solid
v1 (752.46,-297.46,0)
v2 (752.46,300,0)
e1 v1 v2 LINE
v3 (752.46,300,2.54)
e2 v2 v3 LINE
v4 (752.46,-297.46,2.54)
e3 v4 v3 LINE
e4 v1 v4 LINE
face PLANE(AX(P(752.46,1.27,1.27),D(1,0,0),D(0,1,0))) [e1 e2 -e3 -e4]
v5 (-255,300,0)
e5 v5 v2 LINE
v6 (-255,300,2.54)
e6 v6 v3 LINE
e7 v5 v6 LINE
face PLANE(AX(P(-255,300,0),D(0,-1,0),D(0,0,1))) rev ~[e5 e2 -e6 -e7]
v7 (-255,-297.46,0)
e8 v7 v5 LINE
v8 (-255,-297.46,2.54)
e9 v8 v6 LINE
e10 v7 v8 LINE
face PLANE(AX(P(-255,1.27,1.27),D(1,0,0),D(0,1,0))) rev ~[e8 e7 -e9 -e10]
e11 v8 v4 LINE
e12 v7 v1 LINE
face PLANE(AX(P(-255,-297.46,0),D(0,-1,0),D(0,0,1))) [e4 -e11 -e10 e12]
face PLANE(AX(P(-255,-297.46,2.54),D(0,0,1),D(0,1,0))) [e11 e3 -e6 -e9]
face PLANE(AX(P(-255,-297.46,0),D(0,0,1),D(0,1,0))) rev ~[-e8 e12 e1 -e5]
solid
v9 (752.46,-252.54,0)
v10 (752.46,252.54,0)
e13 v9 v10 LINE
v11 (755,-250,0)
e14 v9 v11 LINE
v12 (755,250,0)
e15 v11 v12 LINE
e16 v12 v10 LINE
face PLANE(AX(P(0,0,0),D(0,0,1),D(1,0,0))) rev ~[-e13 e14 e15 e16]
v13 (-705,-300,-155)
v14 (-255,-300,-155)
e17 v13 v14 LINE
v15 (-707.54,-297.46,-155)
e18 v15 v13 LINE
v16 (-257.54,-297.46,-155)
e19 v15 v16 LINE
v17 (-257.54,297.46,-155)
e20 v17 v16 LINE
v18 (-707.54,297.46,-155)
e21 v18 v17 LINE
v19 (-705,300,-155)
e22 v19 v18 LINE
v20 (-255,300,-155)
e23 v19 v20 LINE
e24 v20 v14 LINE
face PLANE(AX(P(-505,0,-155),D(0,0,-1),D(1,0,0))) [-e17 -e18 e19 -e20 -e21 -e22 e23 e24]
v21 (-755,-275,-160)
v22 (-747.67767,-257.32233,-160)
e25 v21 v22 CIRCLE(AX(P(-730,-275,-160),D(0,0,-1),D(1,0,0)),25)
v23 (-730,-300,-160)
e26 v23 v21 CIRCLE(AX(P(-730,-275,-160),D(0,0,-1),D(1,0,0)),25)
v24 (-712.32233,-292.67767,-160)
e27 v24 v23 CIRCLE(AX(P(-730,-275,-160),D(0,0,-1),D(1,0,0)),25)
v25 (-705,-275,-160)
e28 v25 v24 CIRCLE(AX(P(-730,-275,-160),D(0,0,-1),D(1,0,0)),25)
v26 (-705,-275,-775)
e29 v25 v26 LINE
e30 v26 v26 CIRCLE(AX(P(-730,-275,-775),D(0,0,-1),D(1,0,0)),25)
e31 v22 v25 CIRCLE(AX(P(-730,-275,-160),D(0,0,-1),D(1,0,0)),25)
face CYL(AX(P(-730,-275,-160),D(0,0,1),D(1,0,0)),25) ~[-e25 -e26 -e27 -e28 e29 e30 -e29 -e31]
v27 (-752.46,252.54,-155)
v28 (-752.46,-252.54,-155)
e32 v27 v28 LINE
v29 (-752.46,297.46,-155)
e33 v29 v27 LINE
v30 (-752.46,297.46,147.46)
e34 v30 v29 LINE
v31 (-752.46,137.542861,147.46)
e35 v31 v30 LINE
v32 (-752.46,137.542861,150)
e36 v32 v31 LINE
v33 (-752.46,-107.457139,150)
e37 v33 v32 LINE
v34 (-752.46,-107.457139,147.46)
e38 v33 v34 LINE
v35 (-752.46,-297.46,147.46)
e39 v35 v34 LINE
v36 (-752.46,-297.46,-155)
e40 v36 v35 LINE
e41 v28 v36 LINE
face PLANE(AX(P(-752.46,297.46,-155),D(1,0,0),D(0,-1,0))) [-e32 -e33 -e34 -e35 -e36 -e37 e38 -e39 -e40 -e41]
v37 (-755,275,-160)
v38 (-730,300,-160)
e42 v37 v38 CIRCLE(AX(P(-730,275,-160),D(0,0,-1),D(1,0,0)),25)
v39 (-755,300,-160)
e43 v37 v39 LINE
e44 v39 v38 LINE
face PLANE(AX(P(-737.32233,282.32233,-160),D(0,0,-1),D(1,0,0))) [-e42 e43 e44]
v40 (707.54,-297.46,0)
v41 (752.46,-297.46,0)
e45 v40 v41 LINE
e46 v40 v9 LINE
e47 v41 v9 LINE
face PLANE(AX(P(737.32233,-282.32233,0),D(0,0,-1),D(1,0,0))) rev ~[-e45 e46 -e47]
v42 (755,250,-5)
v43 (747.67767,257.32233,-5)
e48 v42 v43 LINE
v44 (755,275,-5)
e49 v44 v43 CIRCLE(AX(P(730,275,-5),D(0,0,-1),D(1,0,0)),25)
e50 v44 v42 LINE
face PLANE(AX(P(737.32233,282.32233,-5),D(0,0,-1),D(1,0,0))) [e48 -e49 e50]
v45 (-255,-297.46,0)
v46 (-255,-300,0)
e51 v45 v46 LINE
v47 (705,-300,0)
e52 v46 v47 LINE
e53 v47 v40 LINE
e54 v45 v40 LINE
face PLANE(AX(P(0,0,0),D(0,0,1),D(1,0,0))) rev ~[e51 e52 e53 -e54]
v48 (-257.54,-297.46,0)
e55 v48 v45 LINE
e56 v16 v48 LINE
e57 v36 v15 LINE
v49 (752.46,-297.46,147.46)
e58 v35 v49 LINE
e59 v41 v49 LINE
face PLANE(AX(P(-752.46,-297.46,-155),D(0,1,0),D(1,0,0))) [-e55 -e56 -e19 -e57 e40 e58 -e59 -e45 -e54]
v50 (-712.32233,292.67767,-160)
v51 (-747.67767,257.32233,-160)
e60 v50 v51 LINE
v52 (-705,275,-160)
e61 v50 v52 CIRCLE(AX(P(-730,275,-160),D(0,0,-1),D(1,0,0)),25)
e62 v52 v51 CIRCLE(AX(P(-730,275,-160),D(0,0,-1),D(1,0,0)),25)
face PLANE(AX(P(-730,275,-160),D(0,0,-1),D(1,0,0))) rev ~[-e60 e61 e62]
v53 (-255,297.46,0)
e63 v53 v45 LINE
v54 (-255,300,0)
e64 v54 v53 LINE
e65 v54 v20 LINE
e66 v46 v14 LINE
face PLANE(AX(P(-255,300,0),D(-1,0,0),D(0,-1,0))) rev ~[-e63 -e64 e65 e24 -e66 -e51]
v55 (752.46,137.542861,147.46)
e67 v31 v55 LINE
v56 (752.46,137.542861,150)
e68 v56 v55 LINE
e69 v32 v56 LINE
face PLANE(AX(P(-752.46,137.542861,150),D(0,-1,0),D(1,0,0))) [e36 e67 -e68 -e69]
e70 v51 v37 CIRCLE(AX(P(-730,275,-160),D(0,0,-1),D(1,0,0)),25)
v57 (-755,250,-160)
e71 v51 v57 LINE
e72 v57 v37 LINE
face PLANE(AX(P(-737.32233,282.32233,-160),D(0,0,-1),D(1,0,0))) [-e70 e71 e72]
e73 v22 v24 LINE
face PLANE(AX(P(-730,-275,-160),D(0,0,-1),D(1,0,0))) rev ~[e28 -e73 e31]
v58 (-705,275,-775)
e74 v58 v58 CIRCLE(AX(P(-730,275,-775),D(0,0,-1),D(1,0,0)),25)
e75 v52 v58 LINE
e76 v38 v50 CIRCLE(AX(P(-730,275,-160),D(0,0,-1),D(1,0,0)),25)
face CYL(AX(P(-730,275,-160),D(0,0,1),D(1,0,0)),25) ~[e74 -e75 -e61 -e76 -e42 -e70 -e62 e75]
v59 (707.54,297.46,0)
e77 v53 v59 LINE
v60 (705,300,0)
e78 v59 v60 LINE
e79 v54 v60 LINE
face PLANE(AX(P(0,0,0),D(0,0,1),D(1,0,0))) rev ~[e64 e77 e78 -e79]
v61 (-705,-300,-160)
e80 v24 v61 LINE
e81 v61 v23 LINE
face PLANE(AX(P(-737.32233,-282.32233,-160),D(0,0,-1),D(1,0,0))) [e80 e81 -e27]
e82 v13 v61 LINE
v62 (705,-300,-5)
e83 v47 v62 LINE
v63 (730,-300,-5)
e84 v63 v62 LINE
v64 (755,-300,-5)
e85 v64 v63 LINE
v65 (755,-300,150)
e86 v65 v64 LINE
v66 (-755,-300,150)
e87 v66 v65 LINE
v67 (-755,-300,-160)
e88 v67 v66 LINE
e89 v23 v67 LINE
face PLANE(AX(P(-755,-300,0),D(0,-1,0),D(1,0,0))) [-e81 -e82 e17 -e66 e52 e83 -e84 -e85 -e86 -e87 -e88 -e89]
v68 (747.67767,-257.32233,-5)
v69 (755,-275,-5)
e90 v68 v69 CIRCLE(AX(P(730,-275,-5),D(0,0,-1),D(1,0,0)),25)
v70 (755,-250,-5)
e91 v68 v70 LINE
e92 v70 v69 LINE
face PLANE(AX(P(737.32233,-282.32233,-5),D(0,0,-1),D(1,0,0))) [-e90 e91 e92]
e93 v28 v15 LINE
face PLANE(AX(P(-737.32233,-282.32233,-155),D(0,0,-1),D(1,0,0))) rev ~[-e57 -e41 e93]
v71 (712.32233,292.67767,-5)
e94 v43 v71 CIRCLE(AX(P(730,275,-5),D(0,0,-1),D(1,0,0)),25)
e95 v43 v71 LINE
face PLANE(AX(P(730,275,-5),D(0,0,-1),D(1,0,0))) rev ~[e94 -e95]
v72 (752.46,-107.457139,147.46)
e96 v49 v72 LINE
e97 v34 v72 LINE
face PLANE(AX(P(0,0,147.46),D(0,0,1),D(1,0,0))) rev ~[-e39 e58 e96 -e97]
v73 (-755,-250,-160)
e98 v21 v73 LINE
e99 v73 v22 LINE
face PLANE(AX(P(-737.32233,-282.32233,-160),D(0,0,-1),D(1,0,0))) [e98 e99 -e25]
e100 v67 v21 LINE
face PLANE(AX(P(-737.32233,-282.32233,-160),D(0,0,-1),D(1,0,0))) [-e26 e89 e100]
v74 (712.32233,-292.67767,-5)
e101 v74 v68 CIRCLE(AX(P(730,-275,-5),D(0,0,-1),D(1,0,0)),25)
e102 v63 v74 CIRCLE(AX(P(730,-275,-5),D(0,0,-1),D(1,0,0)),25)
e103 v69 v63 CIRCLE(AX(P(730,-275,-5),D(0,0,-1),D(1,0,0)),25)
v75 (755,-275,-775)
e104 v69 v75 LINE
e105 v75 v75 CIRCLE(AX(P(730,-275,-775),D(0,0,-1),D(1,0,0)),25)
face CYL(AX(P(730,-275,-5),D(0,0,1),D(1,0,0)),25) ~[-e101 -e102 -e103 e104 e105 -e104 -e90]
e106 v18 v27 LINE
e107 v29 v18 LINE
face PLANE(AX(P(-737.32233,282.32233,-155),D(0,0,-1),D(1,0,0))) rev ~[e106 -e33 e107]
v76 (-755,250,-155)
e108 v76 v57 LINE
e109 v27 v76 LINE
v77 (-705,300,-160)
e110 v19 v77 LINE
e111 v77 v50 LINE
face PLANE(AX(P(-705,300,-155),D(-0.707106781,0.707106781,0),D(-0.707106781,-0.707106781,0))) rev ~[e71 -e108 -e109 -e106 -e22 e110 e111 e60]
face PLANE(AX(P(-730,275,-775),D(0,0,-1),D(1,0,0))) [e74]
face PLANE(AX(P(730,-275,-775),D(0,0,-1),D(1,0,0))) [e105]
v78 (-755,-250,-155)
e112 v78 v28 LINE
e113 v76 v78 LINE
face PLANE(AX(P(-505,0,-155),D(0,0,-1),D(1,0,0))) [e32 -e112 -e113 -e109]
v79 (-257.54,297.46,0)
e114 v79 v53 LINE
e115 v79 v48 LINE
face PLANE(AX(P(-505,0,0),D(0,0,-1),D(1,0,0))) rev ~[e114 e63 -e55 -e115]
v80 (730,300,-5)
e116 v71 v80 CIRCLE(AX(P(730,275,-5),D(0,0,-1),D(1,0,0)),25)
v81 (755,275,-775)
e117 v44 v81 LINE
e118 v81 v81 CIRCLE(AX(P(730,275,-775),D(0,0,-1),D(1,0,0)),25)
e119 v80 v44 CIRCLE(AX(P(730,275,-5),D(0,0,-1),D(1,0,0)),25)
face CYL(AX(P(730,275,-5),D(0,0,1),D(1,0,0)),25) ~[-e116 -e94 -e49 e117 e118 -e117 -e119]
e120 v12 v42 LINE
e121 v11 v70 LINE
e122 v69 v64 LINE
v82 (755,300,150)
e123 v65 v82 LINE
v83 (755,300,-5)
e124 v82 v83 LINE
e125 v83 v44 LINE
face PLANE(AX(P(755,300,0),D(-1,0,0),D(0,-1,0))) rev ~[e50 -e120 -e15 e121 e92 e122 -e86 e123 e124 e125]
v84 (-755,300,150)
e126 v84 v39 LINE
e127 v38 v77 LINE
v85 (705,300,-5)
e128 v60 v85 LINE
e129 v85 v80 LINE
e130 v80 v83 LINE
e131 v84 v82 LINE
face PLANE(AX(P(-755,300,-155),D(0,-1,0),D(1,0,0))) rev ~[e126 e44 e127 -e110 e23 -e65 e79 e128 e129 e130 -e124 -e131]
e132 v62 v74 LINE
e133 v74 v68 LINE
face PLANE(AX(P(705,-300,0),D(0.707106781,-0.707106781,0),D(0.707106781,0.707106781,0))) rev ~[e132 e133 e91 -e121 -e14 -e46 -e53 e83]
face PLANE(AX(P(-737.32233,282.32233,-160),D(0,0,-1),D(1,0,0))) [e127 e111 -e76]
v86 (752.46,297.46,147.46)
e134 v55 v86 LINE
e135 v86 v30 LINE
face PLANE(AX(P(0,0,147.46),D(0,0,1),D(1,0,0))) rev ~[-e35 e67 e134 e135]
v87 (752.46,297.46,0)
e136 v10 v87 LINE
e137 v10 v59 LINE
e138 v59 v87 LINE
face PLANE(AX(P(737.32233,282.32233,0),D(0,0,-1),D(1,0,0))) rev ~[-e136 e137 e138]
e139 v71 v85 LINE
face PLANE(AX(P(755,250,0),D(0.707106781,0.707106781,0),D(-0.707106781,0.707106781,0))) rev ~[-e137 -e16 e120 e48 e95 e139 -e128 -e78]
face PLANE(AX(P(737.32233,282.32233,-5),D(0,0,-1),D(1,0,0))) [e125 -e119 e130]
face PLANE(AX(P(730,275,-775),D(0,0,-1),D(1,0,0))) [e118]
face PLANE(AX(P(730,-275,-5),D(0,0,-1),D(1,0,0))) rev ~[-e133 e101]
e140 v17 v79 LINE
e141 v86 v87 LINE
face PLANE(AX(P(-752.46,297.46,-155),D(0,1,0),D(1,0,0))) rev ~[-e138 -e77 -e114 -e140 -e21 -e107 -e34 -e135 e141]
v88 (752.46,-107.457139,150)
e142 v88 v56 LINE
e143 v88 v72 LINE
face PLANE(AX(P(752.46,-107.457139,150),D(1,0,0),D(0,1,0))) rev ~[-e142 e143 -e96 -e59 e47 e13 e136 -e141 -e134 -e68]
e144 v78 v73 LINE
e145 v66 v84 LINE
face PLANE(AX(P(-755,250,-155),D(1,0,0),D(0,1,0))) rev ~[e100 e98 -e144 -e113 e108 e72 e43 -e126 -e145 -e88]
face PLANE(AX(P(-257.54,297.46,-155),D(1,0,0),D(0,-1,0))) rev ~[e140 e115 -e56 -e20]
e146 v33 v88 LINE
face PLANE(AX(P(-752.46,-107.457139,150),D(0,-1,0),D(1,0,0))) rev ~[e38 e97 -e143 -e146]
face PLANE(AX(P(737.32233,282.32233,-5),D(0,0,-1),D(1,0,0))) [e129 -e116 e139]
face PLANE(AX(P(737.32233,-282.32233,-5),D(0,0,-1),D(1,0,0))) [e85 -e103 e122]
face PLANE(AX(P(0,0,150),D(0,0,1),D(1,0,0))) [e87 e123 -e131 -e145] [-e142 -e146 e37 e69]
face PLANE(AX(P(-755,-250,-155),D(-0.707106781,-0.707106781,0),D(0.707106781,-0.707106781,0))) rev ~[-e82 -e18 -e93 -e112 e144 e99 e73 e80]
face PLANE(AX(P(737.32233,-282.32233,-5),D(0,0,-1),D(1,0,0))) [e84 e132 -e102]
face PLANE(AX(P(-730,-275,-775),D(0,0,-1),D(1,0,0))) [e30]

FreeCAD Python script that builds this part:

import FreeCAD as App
import Part
import Sketcher
from FreeCAD import Vector


def faces_at(feature, points):
    """Names of the faces that lie closest to the given points."""
    faces = feature.Shape.Faces
    near = lambda p: min(range(len(faces)), key=lambda i: faces[i].distToShape(Part.Vertex(*p))[0])
    return sorted({f"Face{near(p) + 1}" for p in points})


def add_polygon(sketch, points):
    """Adds a closed chain of lines whose ends are joined by coincident constraints."""
    first, n = sketch.GeometryCount, len(points)
    for a, b in zip(points, points[1:] + points[:1]):
        sketch.addGeometry(Part.LineSegment(App.Vector(*a, 0), App.Vector(*b, 0)), False)
    for i in range(n):
        sketch.addConstraint(Sketcher.Constraint("Coincident", first + i, 2, first + (i + 1) % n, 1))

doc = App.newDocument("Part")
body = doc.addObject("PartDesign::Body", "Body")

sketch1 = body.newObject("Sketcher::SketchObject", "Sketch")
sketch1.AttachmentSupport = (doc.getObject("XY_Plane"), [""])
sketch1.MapMode = "FlatFace"
add_polygon(sketch1, [(-755, 300), (-755, -300), (755, -300), (755, 300)])
sketch1.addConstraint(Sketcher.Constraint("Vertical", 0))
sketch1.addConstraint(Sketcher.Constraint("Horizontal", 1))
sketch1.addConstraint(Sketcher.Constraint("Vertical", 2))
sketch1.addConstraint(Sketcher.Constraint("Horizontal", 3))
sketch1.addConstraint(Sketcher.Constraint("Symmetric", 0, 2, 2, 2, -1, 1))
sketch1.addConstraint(Sketcher.Constraint("DistanceX", 1, 1, 1, 2, 1510.0))
sketch1.addConstraint(Sketcher.Constraint("DistanceY", 0, 2, 0, 1, 600.0))
pad1 = body.newObject("PartDesign::Pad", "Pad")
pad1.Profile = sketch1
pad1.Length = 150
doc.recompute()

thickness = body.newObject("PartDesign::Thickness", "Thickness")
thickness.Base = (pad1, faces_at(pad1, [(0, 0, 0)]))
thickness.Value = 2.54
thickness.Reversed = True
thickness.Join = "Arc"

sketch2 = body.newObject("Sketcher::SketchObject", "Sketch001")
sketch2.AttachmentSupport = (doc.getObject("XY_Plane"), [""])
sketch2.MapMode = "FlatFace"
add_polygon(sketch2, [(-755, -300), (-755, 300), (-255, 300), (-255, -300)])
sketch2.addConstraint(Sketcher.Constraint("Vertical", 0))
sketch2.addConstraint(Sketcher.Constraint("Horizontal", 1))
sketch2.addConstraint(Sketcher.Constraint("Vertical", 2))
sketch2.addConstraint(Sketcher.Constraint("Horizontal", 3))
sketch2.addConstraint(Sketcher.Constraint("DistanceX", 1, 1, 1, 2, 500.0))
sketch2.addConstraint(Sketcher.Constraint("DistanceY", 0, 1, 0, 2, 600.0))
sketch2.addConstraint(Sketcher.Constraint("DistanceX", 0, 2, -1, 1, 755.0))
sketch2.addConstraint(Sketcher.Constraint("DistanceY", -1, 1, 0, 2, 300.0))
pad2 = body.newObject("PartDesign::Pad", "Pad001")
pad2.Profile = sketch2
pad2.Length = 155
pad2.Reversed = True

sketch3 = body.newObject("Sketcher::SketchObject", "Sketch002")
sketch3.AttachmentSupport = (doc.getObject("XY_Plane"), [""])
sketch3.MapMode = "FlatFace"
sketch3.AttachmentOffset = App.Placement(Vector(0, 0, -155), App.Rotation())
add_polygon(sketch3, [(-752, -297), (-752, 297), (-258, 297), (-258, -297)])
sketch3.addConstraint(Sketcher.Constraint("Vertical", 0))
sketch3.addConstraint(Sketcher.Constraint("Horizontal", 1))
sketch3.addConstraint(Sketcher.Constraint("Vertical", 2))
sketch3.addConstraint(Sketcher.Constraint("Horizontal", 3))
sketch3.addConstraint(Sketcher.Constraint("DistanceX", 1, 1, 1, 2, 494.92))
sketch3.addConstraint(Sketcher.Constraint("DistanceY", 0, 1, 0, 2, 594.92))
sketch3.addConstraint(Sketcher.Constraint("DistanceX", 0, 2, -1, 1, 752.46))
sketch3.addConstraint(Sketcher.Constraint("DistanceY", -1, 1, 0, 2, 297.46))
pocket1 = body.newObject("PartDesign::Pocket", "Pocket")
pocket1.Profile = sketch3
pocket1.Length = 302.46
pocket1.Reversed = True

sketch4 = body.newObject("Sketcher::SketchObject", "Sketch003")
sketch4.AttachmentSupport = (doc.getObject("XY_Plane"), [""])
sketch4.MapMode = "FlatFace"
sketch4.AttachmentOffset = App.Placement(Vector(0, 0, 150), App.Rotation())
add_polygon(sketch4, [(-752, 138), (-752, -107), (752, -107), (752, 138)])
sketch4.addConstraint(Sketcher.Constraint("Vertical", 0))
sketch4.addConstraint(Sketcher.Constraint("Horizontal", 1))
sketch4.addConstraint(Sketcher.Constraint("Vertical", 2))
sketch4.addConstraint(Sketcher.Constraint("Horizontal", 3))
sketch4.addConstraint(Sketcher.Constraint("DistanceY", 0, 2, 0, 1, 245.0))
sketch4.addConstraint(Sketcher.Constraint("DistanceX", 1, 1, 1, 2, 1504.92))
sketch4.addConstraint(Sketcher.Constraint("DistanceX", 0, 2, -1, 1, 752.46))
sketch4.addConstraint(Sketcher.Constraint("DistanceY", 0, 2, -1, 1, 107.457139))
pocket2 = body.newObject("PartDesign::Pocket", "Pocket001")
pocket2.Profile = sketch4
pocket2.Length = 25.4

sketch5 = body.newObject("Sketcher::SketchObject", "Sketch004")
sketch5.AttachmentSupport = (doc.getObject("XY_Plane"), [""])
sketch5.MapMode = "FlatFace"
add_polygon(sketch5, [(705, 300), (755, 300), (755, 250)])
add_polygon(sketch5, [(755, -250), (755, -300), (705, -300)])
sketch5.addConstraint(Sketcher.Constraint("Horizontal", 0))
sketch5.addConstraint(Sketcher.Constraint("Vertical", 1))
sketch5.addConstraint(Sketcher.Constraint("Vertical", 3))
sketch5.addConstraint(Sketcher.Constraint("Horizontal", 4))
sketch5.addConstraint(Sketcher.Constraint("Symmetric", 0, 2, 3, 2, -1))
sketch5.addConstraint(Sketcher.Constraint("Perpendicular", 2, 5))
sketch5.addConstraint(Sketcher.Constraint("Vertical", 2, 2, 4, 2))
sketch5.addConstraint(Sketcher.Constraint("Equal", 4, 1))
sketch5.addConstraint(Sketcher.Constraint("DistanceX", 0, 1, 0, 2, 50.0))
sketch5.addConstraint(Sketcher.Constraint("DistanceX", -1, 1, 0, 2, 755.0))
sketch5.addConstraint(Sketcher.Constraint("DistanceY", -1, 1, 0, 2, 300.0))
pad3 = body.newObject("PartDesign::Pad", "Pad002")
pad3.Profile = sketch5
pad3.Length = 5
pad3.Reversed = True

sketch6 = body.newObject("Sketcher::SketchObject", "Sketch005")
sketch6.AttachmentSupport = (doc.getObject("XY_Plane"), [""])
sketch6.MapMode = "FlatFace"
sketch6.AttachmentOffset = App.Placement(Vector(0, 0, -5), App.Rotation())
sketch6.addGeometry(Part.Circle(Vector(730, -275, 0), Vector(0, 0, 1), 25), False)
sketch6.addGeometry(Part.Circle(Vector(730, 275, 0), Vector(0, 0, 1), 25), False)
sketch6.addConstraint(Sketcher.Constraint("Equal", 0, 1))
sketch6.addConstraint(Sketcher.Constraint("Symmetric", 0, 3, 1, 3, -1))
sketch6.addConstraint(Sketcher.Constraint("Diameter", 0, 50.0))
sketch6.addConstraint(Sketcher.Constraint("DistanceX", -1, 1, 0, 3, 730.0))
sketch6.addConstraint(Sketcher.Constraint("DistanceY", 0, 3, -1, 1, 275.0))
pad4 = body.newObject("PartDesign::Pad", "Pad003")
pad4.Profile = sketch6
pad4.Length = 770
pad4.Reversed = True

sketch7 = body.newObject("Sketcher::SketchObject", "Sketch006")
sketch7.AttachmentSupport = (doc.getObject("XY_Plane"), [""])
sketch7.MapMode = "FlatFace"
sketch7.AttachmentOffset = App.Placement(Vector(0, 0, -155), App.Rotation())
add_polygon(sketch7, [(-755, 250), (-755, 300), (-705, 300)])
add_polygon(sketch7, [(-705, -300), (-755, -300), (-755, -250)])
sketch7.addConstraint(Sketcher.Constraint("Vertical", 0))
sketch7.addConstraint(Sketcher.Constraint("Horizontal", 1))
sketch7.addConstraint(Sketcher.Constraint("Horizontal", 3))
sketch7.addConstraint(Sketcher.Constraint("Vertical", 4))
sketch7.addConstraint(Sketcher.Constraint("Symmetric", 0, 2, 3, 2, -1))
sketch7.addConstraint(Sketcher.Constraint("Perpendicular", 2, 5))
sketch7.addConstraint(Sketcher.Constraint("Vertical", 1, 2, 5, 2))
sketch7.addConstraint(Sketcher.Constraint("Equal", 3, 0))
sketch7.addConstraint(Sketcher.Constraint("DistanceX", 1, 1, 1, 2, 50.0))
sketch7.addConstraint(Sketcher.Constraint("DistanceX", 0, 2, -1, 1, 755.0))
sketch7.addConstraint(Sketcher.Constraint("DistanceY", -1, 1, 0, 2, 300.0))
pad5 = body.newObject("PartDesign::Pad", "Pad004")
pad5.Profile = sketch7
pad5.Length = 5
pad5.Reversed = True

sketch8 = body.newObject("Sketcher::SketchObject", "Sketch007")
sketch8.AttachmentSupport = (doc.getObject("XY_Plane"), [""])
sketch8.MapMode = "FlatFace"
sketch8.AttachmentOffset = App.Placement(Vector(0, 0, -160), App.Rotation())
sketch8.addGeometry(Part.Circle(Vector(-730, -275, 0), Vector(0, 0, 1), 25), False)
sketch8.addGeometry(Part.Circle(Vector(-730, 275, 0), Vector(0, 0, 1), 25), False)
sketch8.addConstraint(Sketcher.Constraint("Equal", 0, 1))
sketch8.addConstraint(Sketcher.Constraint("Symmetric", 0, 3, 1, 3, -1))
sketch8.addConstraint(Sketcher.Constraint("Diameter", 0, 50.0))
sketch8.addConstraint(Sketcher.Constraint("DistanceX", 0, 3, -1, 1, 730.0))
sketch8.addConstraint(Sketcher.Constraint("DistanceY", 0, 3, -1, 1, 275.0))
pad6 = body.newObject("PartDesign::Pad", "Pad005")
pad6.Profile = sketch8
pad6.Length = 615
pad6.Reversed = True
body2 = doc.addObject("PartDesign::Body", "Body001")

sketch9 = body2.newObject("Sketcher::SketchObject", "Sketch008")
sketch9.AttachmentSupport = (doc.getObject("YZ_Plane001"), [""])
sketch9.MapMode = "FlatFace"
sketch9.AttachmentOffset = App.Placement(Vector(0, 0, -255), App.Rotation())
add_polygon(sketch9, [(-297.5, 2.5), (-297.5, 0), (300, 0), (300, 2.5)])
sketch9.addConstraint(Sketcher.Constraint("Vertical", 0))
sketch9.addConstraint(Sketcher.Constraint("Horizontal", 1))
sketch9.addConstraint(Sketcher.Constraint("Vertical", 2))
sketch9.addConstraint(Sketcher.Constraint("Horizontal", 3))
sketch9.addConstraint(Sketcher.Constraint("PointOnObject", 0, 2, -1))
sketch9.addConstraint(Sketcher.Constraint("DistanceX", -1, 1, 1, 2, 300.0))
sketch9.addConstraint(Sketcher.Constraint("DistanceX", 1, 1, 1, 2, 597.46))
sketch9.addConstraint(Sketcher.Constraint("DistanceY", 0, 2, 0, 1, 2.54))
pad7 = body2.newObject("PartDesign::Pad", "Pad006")
pad7.Profile = sketch9
pad7.Length = 1007.46

doc.recompute()
